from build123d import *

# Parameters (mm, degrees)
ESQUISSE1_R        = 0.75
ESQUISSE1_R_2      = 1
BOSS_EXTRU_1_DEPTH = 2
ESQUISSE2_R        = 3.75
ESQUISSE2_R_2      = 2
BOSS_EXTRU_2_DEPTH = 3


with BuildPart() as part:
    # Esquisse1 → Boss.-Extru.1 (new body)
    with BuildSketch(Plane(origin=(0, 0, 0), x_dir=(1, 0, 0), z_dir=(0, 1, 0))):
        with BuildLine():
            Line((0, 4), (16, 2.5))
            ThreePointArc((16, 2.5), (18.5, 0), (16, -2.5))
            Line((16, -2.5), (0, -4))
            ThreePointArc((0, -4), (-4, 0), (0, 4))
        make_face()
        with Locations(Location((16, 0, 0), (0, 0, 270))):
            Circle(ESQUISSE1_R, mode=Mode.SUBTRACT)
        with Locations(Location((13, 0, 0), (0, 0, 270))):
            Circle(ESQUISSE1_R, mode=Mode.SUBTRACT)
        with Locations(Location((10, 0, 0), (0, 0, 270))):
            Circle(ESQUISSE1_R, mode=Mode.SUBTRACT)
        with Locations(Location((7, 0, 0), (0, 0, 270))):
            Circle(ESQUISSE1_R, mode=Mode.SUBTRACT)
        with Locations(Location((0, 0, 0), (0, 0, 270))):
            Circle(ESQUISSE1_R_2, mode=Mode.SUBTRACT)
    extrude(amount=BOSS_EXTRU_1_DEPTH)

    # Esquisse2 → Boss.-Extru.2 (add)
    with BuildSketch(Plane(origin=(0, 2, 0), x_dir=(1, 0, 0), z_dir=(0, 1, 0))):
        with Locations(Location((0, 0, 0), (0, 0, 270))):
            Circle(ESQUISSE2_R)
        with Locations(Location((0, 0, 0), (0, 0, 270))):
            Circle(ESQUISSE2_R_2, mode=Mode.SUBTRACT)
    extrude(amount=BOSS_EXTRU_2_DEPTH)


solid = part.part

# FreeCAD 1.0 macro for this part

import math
import FreeCAD as App
import Part
import Sketcher
from FreeCAD import Vector
Q = App.Units.Quantity

doc = App.newDocument("Part")
body = doc.addObject("PartDesign::Body", "Body")

# Sketch on XZ plane
sketch1 = body.newObject("Sketcher::SketchObject", "Sketch")
sketch1.AttachmentSupport = (doc.getObject("XZ_Plane"), [""])
sketch1.MapMode = "FlatFace"
sketch1.addGeometry(Part.LineSegment(Vector(16, -2.5, 0), Vector(0, -4, 0)), False)
sketch1.addGeometry(Part.ArcOfCircle(Part.Circle(Vector(0, 0, 0), Vector(0, 0, 1), 4), math.radians(90), math.radians(270)), False)
sketch1.addGeometry(Part.LineSegment(Vector(0, 4, 0), Vector(16, 2.5, 0)), False)
sketch1.addGeometry(Part.ArcOfCircle(Part.Circle(Vector(16, 0, 0), Vector(0, 0, 1), 2.5), math.radians(-90), math.radians(90)), False)
sketch1.addGeometry(Part.Circle(Vector(16, 0, 0), Vector(0, 0, 1), 0.75), False)
sketch1.addGeometry(Part.Circle(Vector(13, 0, 0), Vector(0, 0, 1), 0.75), False)
sketch1.addGeometry(Part.Circle(Vector(10, 0, 0), Vector(0, 0, 1), 0.75), False)
sketch1.addGeometry(Part.Circle(Vector(7, 0, 0), Vector(0, 0, 1), 0.75), False)
sketch1.addGeometry(Part.Circle(Vector(0, 0, 0), Vector(0, 0, 1), 1), False)
sketch1.addConstraint(Sketcher.Constraint("Coincident", 0, 2, 1, 2))
sketch1.addConstraint(Sketcher.Constraint("Coincident", 1, 1, 2, 1))
sketch1.addConstraint(Sketcher.Constraint("Coincident", 2, 2, 3, 2))
sketch1.addConstraint(Sketcher.Constraint("Coincident", 3, 1, 0, 1))
sketch1.addConstraint(Sketcher.Constraint("Coincident", 1, 3, -1, 1))
sketch1.addConstraint(Sketcher.Constraint("Coincident", 8, 3, -1, 1))
sketch1.addConstraint(Sketcher.Constraint("Coincident", 4, 3, 3, 3))
sketch1.addConstraint(Sketcher.Constraint("Equal", 4, 5))
sketch1.addConstraint(Sketcher.Constraint("Equal", 5, 6))
sketch1.addConstraint(Sketcher.Constraint("Equal", 6, 7))
sketch1.addConstraint(Sketcher.Constraint("Symmetric", 2, 2, 3, 1, -1))
sketch1.addConstraint(Sketcher.Constraint("PointOnObject", 5, 3, -1))
sketch1.addConstraint(Sketcher.Constraint("PointOnObject", 6, 3, -1))
sketch1.addConstraint(Sketcher.Constraint("PointOnObject", 7, 3, -1))
sketch1.addConstraint(Sketcher.Constraint("PointOnObject", 0, 2, -2))
sketch1.addConstraint(Sketcher.Constraint("PointOnObject", 1, 1, -2))
sketch1.addConstraint(Sketcher.Constraint("Vertical", 4, 3, 2, 2))
sketch1.addConstraint(Sketcher.Constraint("Diameter", 8, Q("2 mm")))
sketch1.addConstraint(Sketcher.Constraint("Radius", 1, Q("4 mm")))
sketch1.addConstraint(Sketcher.Constraint("Diameter", 4, Q("1.5 mm")))
sketch1.addConstraint(Sketcher.Constraint("Radius", 3, Q("2.5 mm")))
sketch1.addConstraint(Sketcher.Constraint("DistanceX", -1, 1, 3, 3, Q("16 mm")))
sketch1.addConstraint(Sketcher.Constraint("DistanceX", -1, 1, 5, 3, Q("13 mm")))
sketch1.addConstraint(Sketcher.Constraint("DistanceX", -1, 1, 6, 3, Q("10 mm")))
sketch1.addConstraint(Sketcher.Constraint("DistanceX", -1, 1, 7, 3, Q("7 mm")))
pad1 = body.newObject("PartDesign::Pad", "Pad")
pad1.Profile = sketch1
pad1.Length = 2
pad1.Reversed = True

# Sketch on XZ plane
sketch2 = body.newObject("Sketcher::SketchObject", "Sketch001")
sketch2.AttachmentSupport = (doc.getObject("XZ_Plane"), [""])
sketch2.MapMode = "FlatFace"
sketch2.AttachmentOffset = App.Placement(Vector(0, 0, -2), App.Rotation())
sketch2.addGeometry(Part.Circle(Vector(0, 0, 0), Vector(0, 0, 1), 3.75), False)
sketch2.addGeometry(Part.Circle(Vector(0, 0, 0), Vector(0, 0, 1), 2), False)
sketch2.addConstraint(Sketcher.Constraint("Coincident", 0, 3, -1, 1))
sketch2.addConstraint(Sketcher.Constraint("Coincident", 1, 3, -1, 1))
sketch2.addConstraint(Sketcher.Constraint("Diameter", 1, Q("4 mm")))
sketch2.addConstraint(Sketcher.Constraint("Diameter", 0, Q("7.5 mm")))
pad2 = body.newObject("PartDesign::Pad", "Pad001")
pad2.Profile = sketch2
pad2.Length = 3
pad2.Reversed = True

doc.recompute()
